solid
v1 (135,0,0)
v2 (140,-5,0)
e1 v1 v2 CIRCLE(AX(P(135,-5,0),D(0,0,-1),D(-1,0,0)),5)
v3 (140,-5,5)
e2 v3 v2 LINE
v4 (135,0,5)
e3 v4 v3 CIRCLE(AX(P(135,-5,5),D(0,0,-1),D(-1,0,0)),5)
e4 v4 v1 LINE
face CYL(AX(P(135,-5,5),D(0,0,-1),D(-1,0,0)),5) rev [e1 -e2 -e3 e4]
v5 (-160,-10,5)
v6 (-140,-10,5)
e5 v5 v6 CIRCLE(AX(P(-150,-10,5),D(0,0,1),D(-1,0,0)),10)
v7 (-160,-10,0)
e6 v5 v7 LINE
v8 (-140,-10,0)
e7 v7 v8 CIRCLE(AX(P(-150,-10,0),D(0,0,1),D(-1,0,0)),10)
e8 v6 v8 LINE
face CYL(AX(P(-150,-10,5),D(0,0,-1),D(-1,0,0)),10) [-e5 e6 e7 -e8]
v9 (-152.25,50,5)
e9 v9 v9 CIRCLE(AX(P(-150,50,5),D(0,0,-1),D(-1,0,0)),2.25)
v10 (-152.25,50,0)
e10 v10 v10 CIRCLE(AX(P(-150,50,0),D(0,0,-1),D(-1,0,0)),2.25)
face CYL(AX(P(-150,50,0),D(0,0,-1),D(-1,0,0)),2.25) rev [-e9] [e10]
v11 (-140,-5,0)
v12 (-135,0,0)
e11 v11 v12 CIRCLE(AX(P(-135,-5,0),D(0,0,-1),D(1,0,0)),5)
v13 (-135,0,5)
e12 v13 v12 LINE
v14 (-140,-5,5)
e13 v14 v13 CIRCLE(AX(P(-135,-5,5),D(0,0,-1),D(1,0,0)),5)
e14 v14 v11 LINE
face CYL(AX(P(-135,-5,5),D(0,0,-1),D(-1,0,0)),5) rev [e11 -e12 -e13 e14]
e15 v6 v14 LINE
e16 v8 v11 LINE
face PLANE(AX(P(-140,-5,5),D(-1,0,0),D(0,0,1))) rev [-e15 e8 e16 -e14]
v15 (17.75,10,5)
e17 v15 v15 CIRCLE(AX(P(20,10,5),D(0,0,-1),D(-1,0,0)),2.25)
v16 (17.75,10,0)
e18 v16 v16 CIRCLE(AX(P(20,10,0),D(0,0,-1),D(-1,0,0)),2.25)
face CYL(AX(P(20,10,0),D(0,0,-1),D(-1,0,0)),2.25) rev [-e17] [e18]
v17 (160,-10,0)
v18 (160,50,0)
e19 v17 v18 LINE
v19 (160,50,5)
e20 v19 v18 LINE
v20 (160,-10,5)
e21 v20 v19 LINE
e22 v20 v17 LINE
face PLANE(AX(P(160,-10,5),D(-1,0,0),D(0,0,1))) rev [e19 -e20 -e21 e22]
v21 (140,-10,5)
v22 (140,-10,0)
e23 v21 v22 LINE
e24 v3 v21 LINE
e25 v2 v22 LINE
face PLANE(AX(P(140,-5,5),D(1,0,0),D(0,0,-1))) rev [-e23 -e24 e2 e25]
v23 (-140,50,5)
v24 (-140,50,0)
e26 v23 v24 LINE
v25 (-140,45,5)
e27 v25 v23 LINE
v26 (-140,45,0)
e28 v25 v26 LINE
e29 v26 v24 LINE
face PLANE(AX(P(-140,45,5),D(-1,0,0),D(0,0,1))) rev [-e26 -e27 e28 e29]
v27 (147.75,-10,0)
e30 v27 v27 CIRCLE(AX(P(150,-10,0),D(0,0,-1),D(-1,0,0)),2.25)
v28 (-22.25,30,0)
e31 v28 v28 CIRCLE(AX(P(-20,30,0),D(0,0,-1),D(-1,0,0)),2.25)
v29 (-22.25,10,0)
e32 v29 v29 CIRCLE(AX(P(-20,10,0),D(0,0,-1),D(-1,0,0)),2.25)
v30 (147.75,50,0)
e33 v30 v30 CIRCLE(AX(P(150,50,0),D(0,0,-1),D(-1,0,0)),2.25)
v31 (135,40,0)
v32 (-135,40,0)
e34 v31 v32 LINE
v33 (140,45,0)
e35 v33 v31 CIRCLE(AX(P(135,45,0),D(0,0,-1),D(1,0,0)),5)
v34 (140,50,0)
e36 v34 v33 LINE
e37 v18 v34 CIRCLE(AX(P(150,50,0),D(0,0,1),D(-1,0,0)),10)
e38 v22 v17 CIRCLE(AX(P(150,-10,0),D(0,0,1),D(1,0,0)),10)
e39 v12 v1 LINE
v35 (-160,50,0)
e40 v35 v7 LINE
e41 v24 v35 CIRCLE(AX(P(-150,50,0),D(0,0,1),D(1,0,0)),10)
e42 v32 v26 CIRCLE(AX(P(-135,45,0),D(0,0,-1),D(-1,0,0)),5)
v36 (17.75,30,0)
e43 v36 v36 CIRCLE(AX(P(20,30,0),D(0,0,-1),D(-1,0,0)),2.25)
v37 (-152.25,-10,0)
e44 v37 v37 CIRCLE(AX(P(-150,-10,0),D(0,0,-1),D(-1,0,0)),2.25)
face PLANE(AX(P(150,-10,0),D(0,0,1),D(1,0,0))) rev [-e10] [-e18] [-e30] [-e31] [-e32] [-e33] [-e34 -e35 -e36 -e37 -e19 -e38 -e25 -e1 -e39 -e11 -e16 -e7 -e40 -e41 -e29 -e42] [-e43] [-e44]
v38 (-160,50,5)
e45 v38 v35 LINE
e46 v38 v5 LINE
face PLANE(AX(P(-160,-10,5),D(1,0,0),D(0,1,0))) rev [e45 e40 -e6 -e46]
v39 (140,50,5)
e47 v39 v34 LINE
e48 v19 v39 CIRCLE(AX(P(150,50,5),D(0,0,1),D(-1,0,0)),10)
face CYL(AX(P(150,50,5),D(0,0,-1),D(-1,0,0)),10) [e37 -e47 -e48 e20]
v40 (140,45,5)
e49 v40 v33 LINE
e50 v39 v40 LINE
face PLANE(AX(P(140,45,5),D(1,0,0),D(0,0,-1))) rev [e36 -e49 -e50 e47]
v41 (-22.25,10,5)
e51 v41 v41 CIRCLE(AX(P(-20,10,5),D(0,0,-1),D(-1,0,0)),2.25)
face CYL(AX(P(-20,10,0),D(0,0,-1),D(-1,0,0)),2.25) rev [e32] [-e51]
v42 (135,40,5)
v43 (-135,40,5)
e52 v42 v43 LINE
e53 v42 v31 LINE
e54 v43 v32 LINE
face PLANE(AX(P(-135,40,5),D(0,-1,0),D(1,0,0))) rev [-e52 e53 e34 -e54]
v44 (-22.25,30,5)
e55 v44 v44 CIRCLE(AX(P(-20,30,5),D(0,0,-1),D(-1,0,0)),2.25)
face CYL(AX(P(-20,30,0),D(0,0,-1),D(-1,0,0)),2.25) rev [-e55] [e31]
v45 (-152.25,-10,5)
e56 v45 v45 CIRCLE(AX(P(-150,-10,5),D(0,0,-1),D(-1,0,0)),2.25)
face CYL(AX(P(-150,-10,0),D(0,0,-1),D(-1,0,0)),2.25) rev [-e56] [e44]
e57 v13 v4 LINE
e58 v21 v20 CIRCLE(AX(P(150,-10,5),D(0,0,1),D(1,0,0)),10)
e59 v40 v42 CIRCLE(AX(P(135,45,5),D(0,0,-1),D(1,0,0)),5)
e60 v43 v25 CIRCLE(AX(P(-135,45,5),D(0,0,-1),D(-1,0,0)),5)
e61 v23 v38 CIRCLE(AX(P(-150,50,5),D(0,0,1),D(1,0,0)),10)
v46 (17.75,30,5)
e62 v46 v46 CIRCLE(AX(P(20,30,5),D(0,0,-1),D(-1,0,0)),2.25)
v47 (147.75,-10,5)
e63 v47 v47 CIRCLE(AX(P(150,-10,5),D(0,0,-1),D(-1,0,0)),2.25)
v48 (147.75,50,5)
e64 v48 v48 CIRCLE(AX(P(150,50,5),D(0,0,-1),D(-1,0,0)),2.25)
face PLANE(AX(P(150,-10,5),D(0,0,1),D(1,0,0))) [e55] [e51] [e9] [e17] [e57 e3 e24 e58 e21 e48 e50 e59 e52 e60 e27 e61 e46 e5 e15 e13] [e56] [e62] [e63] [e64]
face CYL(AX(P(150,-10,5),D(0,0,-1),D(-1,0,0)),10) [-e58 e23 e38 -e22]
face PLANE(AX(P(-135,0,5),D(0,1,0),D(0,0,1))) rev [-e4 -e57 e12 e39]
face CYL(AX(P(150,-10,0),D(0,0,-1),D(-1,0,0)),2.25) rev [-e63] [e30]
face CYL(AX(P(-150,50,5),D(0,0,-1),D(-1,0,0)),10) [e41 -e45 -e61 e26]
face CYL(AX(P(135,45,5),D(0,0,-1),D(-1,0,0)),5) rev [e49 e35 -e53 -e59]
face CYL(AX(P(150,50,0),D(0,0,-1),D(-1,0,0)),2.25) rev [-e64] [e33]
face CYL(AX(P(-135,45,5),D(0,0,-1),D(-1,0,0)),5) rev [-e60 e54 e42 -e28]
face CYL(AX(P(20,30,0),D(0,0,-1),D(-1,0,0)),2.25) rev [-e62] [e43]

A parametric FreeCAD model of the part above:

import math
import FreeCAD as App
import Part
import Sketcher

V = App.Vector

doc = App.newDocument("Part")
body = doc.addObject("PartDesign::Body", "Body")

# Sketch on XY plane
sketch1 = doc.addObject("Sketcher::SketchObject", "Sketch")
body.addObject(sketch1)
sketch1.AttachmentSupport = (doc.XY_Plane, [""])
sketch1.MapMode = "FlatFace"
sketch1.addGeometry([
    Part.LineSegment(V(-135, 0, 0), V(135, 0, 0)),  # 0
    Part.ArcOfCircle(Part.Circle(V(135, -5, 0), V(0, 0, 1), 5), math.radians(0), math.radians(90)),  # 1
    Part.LineSegment(V(140, -5, 0), V(140, -10, 0)),  # 2
    Part.ArcOfCircle(Part.Circle(V(150, -10, 0), V(0, 0, 1), 10), math.radians(180), math.radians(360)),  # 3
    Part.LineSegment(V(160, -10, 0), V(160, 50, 0)),  # 4
    Part.ArcOfCircle(Part.Circle(V(150, 50, 0), V(0, 0, 1), 10), math.radians(0), math.radians(180)),  # 5
    Part.LineSegment(V(140, 50, 0), V(140, 45, 0)),  # 6
    Part.ArcOfCircle(Part.Circle(V(135, 45, 0), V(0, 0, 1), 5), math.radians(-90), math.radians(0)),  # 7
    Part.LineSegment(V(135, 40, 0), V(-135, 40, 0)),  # 8
    Part.ArcOfCircle(Part.Circle(V(-135, 45, 0), V(0, 0, 1), 5), math.radians(180), math.radians(270)),  # 9
    Part.LineSegment(V(-140, 45, 0), V(-140, 50, 0)),  # 10
    Part.ArcOfCircle(Part.Circle(V(-150, 50, 0), V(0, 0, 1), 10), math.radians(0), math.radians(180)),  # 11
    Part.LineSegment(V(-160, 50, 0), V(-160, -10, 0)),  # 12
    Part.ArcOfCircle(Part.Circle(V(-150, -10, 0), V(0, 0, 1), 10), math.radians(180), math.radians(360)),  # 13
    Part.LineSegment(V(-140, -10, 0), V(-140, -5, 0)),  # 14
    Part.ArcOfCircle(Part.Circle(V(-135, -5, 0), V(0, 0, 1), 5), math.radians(90), math.radians(180)),  # 15
], False)
sketch1.addConstraint([
    Sketcher.Constraint("Tangent", 0, 2, 1, 2),
    Sketcher.Constraint("Tangent", 1, 1, 2, 1),
    Sketcher.Constraint("Tangent", 2, 2, 3, 1),
    Sketcher.Constraint("Tangent", 3, 2, 4, 1),
    Sketcher.Constraint("Tangent", 4, 2, 5, 1),
    Sketcher.Constraint("Tangent", 5, 2, 6, 1),
    Sketcher.Constraint("Tangent", 6, 2, 7, 2),
    Sketcher.Constraint("Tangent", 7, 1, 8, 1),
    Sketcher.Constraint("Tangent", 8, 2, 9, 2),
    Sketcher.Constraint("Tangent", 9, 1, 10, 1),
    Sketcher.Constraint("Tangent", 10, 2, 11, 1),
    Sketcher.Constraint("Tangent", 11, 2, 12, 1),
    Sketcher.Constraint("Tangent", 12, 2, 13, 1),
    Sketcher.Constraint("Tangent", 13, 2, 14, 1),
    Sketcher.Constraint("Tangent", 14, 2, 15, 2),
    Sketcher.Constraint("Tangent", 15, 1, 0, 1),
    Sketcher.Constraint("Horizontal", 0),
    Sketcher.Constraint("Vertical", 2),
    Sketcher.Constraint("Vertical", 4),
    Sketcher.Constraint("Vertical", 6),
    Sketcher.Constraint("Horizontal", 8),
    Sketcher.Constraint("Vertical", 10),
    Sketcher.Constraint("Vertical", 12),
    Sketcher.Constraint("Vertical", 14),
    Sketcher.Constraint("Equal", 3, 5),
    Sketcher.Constraint("Equal", 1, 7),
    Sketcher.Constraint("Equal", 7, 9),
    Sketcher.Constraint("Equal", 5, 11),
    Sketcher.Constraint("Equal", 11, 13),
    Sketcher.Constraint("Equal", 9, 15),
    Sketcher.Constraint("Symmetric", 0, 2, 15, 1, -1, 1),
    Sketcher.Constraint("Horizontal", 5, 3, 11, 3),
    Sketcher.Constraint("Horizontal", 3, 3, 13, 3),
    Sketcher.Constraint("Equal", 2, 6),
    Sketcher.Constraint("Radius", 1, 5.0),
    Sketcher.Constraint("Radius", 3, 10.0),
    Sketcher.Constraint("DistanceX", 0, 1, 0, 2, 270.0),
    Sketcher.Constraint("DistanceY", 2, 2, 2, 1, 5.0),
    Sketcher.Constraint("DistanceY", 4, 1, 4, 2, 60.0),
])
pad1 = doc.addObject("PartDesign::Pad", "Pad")
body.addObject(pad1)
pad1.Profile = sketch1
pad1.Length = 5

# Sketch on XY plane
sketch2 = doc.addObject("Sketcher::SketchObject", "Sketch001")
body.addObject(sketch2)
sketch2.AttachmentSupport = (doc.XY_Plane, [""])
sketch2.MapMode = "FlatFace"
sketch2.addGeometry([
    Part.Circle(V(150, -10, 0), V(0, 0, 1), 2.25),
    Part.Circle(V(-150, 50, 0), V(0, 0, 1), 2.25),
    Part.Circle(V(-150, -10, 0), V(0, 0, 1), 2.25),
    Part.Circle(V(150, 50, 0), V(0, 0, 1), 2.25),
], False)
sketch2.addConstraint([
    Sketcher.Constraint("Equal", 0, 1),
    Sketcher.Constraint("Equal", 1, 2),
    Sketcher.Constraint("Equal", 2, 3),
    Sketcher.Constraint("Symmetric", 0, 3, 2, 3, -2),
    Sketcher.Constraint("Symmetric", 1, 3, 3, 3, -2),
    Sketcher.Constraint("Vertical", 1, 3, 2, 3),
    Sketcher.Constraint("Diameter", 0, 4.5),
    Sketcher.Constraint("DistanceX", -1, 1, 0, 3, 150.0),
    Sketcher.Constraint("DistanceY", 0, 3, -1, 1, 10.0),
    Sketcher.Constraint("DistanceY", -1, 1, 1, 3, 50.0),
])
doc.recompute()
hole = doc.addObject("PartDesign::Hole", "Hole")
body.addObject(hole)
hole.Profile = sketch2
hole.ThreadType = "None"
hole.Diameter = 4.5
hole.DepthType = "ThroughAll"
hole.Reversed = True

# Sketch on XY plane
sketch3 = doc.addObject("Sketcher::SketchObject", "Sketch002")
body.addObject(sketch3)
sketch3.AttachmentSupport = (doc.XY_Plane, [""])
sketch3.MapMode = "FlatFace"
sketch3.addGeometry([
    Part.Circle(V(-20, 10, 0), V(0, 0, 1), 2.25),
    Part.Circle(V(20, 10, 0), V(0, 0, 1), 2.25),
    Part.Circle(V(20, 30, 0), V(0, 0, 1), 2.25),
    Part.Circle(V(-20, 30, 0), V(0, 0, 1), 2.25),
], False)
sketch3.addConstraint([
    Sketcher.Constraint("Equal", 0, 1),
    Sketcher.Constraint("Equal", 1, 2),
    Sketcher.Constraint("Equal", 2, 3),
    Sketcher.Constraint("Symmetric", 0, 3, 1, 3, -2),
    Sketcher.Constraint("Symmetric", 2, 3, 3, 3, -2),
    Sketcher.Constraint("Vertical", 1, 3, 2, 3),
    Sketcher.Constraint("Diameter", 0, 4.5),
    Sketcher.Constraint("DistanceX", 0, 3, -1, 1, 20.0),
    Sketcher.Constraint("DistanceY", -1, 1, 0, 3, 10.0),
    Sketcher.Constraint("DistanceY", -1, 1, 2, 3, 30.0),
])
doc.recompute()
hole2 = doc.addObject("PartDesign::Hole", "Hole001")
body.addObject(hole2)
hole2.Profile = sketch3
hole2.ThreadType = "None"
hole2.Diameter = 4.5
hole2.DepthType = "ThroughAll"
hole2.Reversed = True

doc.recompute()
